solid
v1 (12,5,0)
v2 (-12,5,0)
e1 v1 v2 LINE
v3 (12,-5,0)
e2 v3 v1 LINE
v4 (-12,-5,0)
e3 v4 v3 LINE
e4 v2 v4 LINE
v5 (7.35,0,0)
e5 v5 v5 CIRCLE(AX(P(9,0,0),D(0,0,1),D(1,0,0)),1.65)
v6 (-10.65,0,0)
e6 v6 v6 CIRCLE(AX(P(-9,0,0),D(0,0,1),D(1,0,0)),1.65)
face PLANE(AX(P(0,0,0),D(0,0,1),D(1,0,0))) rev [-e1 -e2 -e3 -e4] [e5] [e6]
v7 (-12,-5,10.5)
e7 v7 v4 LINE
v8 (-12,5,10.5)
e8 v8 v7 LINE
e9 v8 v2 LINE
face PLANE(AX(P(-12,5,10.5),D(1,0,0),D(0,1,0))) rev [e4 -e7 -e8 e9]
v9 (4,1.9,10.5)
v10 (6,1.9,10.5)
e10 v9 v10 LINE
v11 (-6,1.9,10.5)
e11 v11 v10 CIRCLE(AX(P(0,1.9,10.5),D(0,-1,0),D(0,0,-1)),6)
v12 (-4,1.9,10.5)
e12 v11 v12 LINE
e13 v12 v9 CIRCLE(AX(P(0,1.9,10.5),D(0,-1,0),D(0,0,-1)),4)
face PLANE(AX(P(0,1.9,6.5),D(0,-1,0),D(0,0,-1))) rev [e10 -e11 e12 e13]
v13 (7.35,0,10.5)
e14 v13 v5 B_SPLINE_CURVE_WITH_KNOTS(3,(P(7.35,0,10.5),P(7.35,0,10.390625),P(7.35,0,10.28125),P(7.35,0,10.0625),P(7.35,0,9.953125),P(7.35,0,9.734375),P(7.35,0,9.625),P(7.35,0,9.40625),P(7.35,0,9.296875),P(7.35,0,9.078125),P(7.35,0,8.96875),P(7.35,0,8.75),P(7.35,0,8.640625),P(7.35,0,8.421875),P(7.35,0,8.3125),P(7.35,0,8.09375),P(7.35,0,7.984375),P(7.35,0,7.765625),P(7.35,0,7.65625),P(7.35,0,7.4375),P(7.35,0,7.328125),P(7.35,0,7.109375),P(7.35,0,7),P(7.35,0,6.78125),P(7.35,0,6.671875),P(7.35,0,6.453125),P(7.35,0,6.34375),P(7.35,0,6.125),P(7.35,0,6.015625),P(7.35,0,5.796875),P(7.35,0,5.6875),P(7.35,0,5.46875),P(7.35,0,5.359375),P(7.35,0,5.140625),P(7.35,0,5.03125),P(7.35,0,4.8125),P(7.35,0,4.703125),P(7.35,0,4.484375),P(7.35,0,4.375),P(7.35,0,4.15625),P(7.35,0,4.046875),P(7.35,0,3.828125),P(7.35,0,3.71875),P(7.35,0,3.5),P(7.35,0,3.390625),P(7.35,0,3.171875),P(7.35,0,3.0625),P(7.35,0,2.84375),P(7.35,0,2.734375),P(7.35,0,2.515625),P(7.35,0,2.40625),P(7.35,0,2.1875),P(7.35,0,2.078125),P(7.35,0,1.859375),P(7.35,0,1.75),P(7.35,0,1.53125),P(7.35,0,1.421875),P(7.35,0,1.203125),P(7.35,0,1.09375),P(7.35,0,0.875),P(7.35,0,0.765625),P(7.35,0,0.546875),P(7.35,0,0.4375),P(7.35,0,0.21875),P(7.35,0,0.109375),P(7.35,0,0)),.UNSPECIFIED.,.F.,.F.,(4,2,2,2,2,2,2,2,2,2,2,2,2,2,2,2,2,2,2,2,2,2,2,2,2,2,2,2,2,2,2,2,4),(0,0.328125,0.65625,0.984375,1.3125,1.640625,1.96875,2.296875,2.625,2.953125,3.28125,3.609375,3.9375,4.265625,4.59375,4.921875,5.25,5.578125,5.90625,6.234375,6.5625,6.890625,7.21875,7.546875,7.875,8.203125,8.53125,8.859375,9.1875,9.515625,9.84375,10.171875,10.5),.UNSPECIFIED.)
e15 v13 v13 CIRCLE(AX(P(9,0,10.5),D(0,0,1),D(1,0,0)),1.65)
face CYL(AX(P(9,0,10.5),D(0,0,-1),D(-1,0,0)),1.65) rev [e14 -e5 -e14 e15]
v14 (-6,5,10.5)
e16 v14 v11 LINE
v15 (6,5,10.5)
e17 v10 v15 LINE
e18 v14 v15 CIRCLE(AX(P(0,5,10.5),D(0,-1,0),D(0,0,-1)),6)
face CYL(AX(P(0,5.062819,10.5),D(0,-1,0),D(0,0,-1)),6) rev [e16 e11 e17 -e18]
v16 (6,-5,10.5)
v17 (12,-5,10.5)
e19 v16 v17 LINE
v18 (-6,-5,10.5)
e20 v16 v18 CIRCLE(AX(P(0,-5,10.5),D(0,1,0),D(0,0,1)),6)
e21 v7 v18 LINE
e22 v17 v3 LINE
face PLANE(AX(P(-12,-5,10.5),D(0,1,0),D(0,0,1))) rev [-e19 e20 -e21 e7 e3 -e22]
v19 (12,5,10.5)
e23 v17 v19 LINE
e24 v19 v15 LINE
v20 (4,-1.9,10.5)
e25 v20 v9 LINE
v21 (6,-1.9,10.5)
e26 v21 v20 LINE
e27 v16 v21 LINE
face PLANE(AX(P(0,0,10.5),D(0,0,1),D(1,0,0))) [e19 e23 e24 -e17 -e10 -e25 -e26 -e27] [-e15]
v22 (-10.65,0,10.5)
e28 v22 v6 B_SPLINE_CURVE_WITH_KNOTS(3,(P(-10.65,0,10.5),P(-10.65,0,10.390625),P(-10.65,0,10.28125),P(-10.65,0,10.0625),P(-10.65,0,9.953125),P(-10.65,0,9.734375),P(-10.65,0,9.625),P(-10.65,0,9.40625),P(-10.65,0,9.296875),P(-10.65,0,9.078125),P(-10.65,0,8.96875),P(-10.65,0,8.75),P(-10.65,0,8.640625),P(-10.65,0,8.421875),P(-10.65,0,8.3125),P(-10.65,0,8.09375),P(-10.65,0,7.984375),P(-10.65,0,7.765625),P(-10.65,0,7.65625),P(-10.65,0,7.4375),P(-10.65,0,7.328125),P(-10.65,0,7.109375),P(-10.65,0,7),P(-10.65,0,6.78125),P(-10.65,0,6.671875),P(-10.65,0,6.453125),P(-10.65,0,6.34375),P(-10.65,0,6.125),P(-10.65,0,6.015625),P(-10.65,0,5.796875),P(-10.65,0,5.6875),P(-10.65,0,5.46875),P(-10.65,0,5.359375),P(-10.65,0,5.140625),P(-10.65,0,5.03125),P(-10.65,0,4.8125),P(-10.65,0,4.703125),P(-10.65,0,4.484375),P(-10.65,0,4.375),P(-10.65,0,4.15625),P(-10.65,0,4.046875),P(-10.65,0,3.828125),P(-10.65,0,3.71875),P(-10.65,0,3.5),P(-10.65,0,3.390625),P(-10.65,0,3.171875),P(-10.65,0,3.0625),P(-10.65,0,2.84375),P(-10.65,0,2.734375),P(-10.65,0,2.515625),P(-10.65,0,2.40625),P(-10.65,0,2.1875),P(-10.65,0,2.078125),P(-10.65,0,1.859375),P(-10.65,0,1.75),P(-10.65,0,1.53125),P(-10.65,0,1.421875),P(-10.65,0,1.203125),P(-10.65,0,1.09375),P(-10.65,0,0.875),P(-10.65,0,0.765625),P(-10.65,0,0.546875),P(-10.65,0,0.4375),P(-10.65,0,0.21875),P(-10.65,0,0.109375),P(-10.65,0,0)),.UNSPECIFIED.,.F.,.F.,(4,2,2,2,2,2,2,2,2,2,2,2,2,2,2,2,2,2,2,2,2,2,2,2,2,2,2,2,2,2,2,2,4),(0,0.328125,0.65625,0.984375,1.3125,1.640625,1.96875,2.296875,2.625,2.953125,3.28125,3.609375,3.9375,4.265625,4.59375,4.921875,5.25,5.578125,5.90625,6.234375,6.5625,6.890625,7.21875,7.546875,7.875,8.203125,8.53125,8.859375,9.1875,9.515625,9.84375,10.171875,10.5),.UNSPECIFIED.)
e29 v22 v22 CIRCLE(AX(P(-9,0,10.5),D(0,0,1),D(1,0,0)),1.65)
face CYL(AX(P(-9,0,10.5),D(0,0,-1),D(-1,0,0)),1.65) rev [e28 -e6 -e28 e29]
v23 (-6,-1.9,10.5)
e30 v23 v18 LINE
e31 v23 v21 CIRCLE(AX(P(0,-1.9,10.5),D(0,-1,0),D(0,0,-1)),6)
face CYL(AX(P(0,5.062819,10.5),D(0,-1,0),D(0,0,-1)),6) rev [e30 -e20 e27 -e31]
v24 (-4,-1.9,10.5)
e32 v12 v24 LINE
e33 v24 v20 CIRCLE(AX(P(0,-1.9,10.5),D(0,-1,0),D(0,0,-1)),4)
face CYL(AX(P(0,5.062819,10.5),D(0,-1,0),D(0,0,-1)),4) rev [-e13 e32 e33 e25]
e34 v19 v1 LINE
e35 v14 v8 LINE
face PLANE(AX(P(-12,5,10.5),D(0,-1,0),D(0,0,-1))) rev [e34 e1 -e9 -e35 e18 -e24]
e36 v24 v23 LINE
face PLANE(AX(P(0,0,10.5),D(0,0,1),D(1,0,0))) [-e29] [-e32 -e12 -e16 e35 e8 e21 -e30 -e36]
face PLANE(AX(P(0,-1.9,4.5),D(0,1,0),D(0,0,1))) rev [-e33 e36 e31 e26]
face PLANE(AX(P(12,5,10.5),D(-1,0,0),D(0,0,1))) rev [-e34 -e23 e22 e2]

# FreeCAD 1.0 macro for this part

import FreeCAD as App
import Part
import Sketcher
from FreeCAD import Vector
Q = App.Units.Quantity


def add_polygon(sketch, points):
    """Adds a closed chain of lines whose ends are joined by coincident constraints."""
    first, n = sketch.GeometryCount, len(points)
    for a, b in zip(points, points[1:] + points[:1]):
        sketch.addGeometry(Part.LineSegment(App.Vector(*a, 0), App.Vector(*b, 0)), False)
    for i in range(n):
        sketch.addConstraint(Sketcher.Constraint("Coincident", first + i, 2, first + (i + 1) % n, 1))

doc = App.newDocument("Part")
params = doc.addObject("Spreadsheet::Sheet", "Params")
for row, (alias, value) in enumerate([
    ("sketch1_diameter", "3.3 mm"),
    ("sketch1_width", "24 mm"),
    ("sketch1_height", "10 mm"),
    ("pad1_length", "10.5 mm"),
    ("sketch2_width", "10 mm"),
    ("sketch2_height", "2 mm"),
    ("sketch2_height2", "6 mm"),
    ("sketch2_width2", "3.8 mm"),
    ("groove_angle", "360 deg"),
], start=1):
    params.set(f"A{row}", alias)
    params.set(f"B{row}", "=" + value)
    params.setAlias(f"B{row}", alias)

body = doc.addObject("PartDesign::Body", "Body")

# Sketch on XY plane
sketch1 = body.newObject("Sketcher::SketchObject", "Sketch")
sketch1.AttachmentSupport = (doc.getObject("XY_Plane"), [""])
sketch1.MapMode = "FlatFace"
add_polygon(sketch1, [(-12, 5), (-12, -5), (12, -5), (12, 5)])  # lines 0-3
sketch1.addGeometry(Part.Circle(Vector(-9, 0, 0), Vector(0, 0, 1), 1.6), False)  # 4
sketch1.addGeometry(Part.Circle(Vector(9, 0, 0), Vector(0, 0, 1), 1.6), False)  # 5
sketch1.addConstraint(Sketcher.Constraint("Vertical", 0))
sketch1.addConstraint(Sketcher.Constraint("Horizontal", 1))
sketch1.addConstraint(Sketcher.Constraint("Vertical", 2))
sketch1.addConstraint(Sketcher.Constraint("Horizontal", 3))
sketch1.addConstraint(Sketcher.Constraint("Equal", 4, 5))
sketch1.addConstraint(Sketcher.Constraint("Symmetric", 4, 3, 5, 3, -1, 1))
sketch1.addConstraint(Sketcher.Constraint("Symmetric", 0, 2, 2, 2, -1, 1))
sketch1.addConstraint(Sketcher.Constraint("PointOnObject", 4, 3, -1))
sketch1.addConstraint(Sketcher.Constraint("Diameter", 4, Q("3.3 mm")))
sketch1.addConstraint(Sketcher.Constraint("DistanceX", 1, 1, 1, 2, Q("24 mm")))
sketch1.addConstraint(Sketcher.Constraint("DistanceY", 0, 2, 0, 1, Q("10 mm")))
sketch1.addConstraint(Sketcher.Constraint("DistanceX", 4, 3, -1, 1, Q("9 mm")))
sketch1.setExpression("Constraints[12]", "Params.sketch1_diameter")
sketch1.setExpression("Constraints[13]", "Params.sketch1_width")
sketch1.setExpression("Constraints[14]", "Params.sketch1_height")
pad1 = body.newObject("PartDesign::Pad", "Pad")
pad1.Profile = sketch1
pad1.setExpression("Length", "Params.pad1_length")

# Sketch on YZ plane
sketch2 = body.newObject("Sketcher::SketchObject", "Sketch001")
sketch2.AttachmentSupport = (doc.getObject("YZ_Plane"), [""])
sketch2.MapMode = "FlatFace"
add_polygon(sketch2, [(-1.9, 6.5), (1.9, 6.5), (1.9, 4.5), (5, 4.5), (5, 10.5), (-5, 10.5), (-5, 4.5), (-1.9, 4.5)])  # lines 0-7
sketch2.addGeometry(Part.LineSegment(Vector(-5, 10.5, 0), Vector(5, 10.5, 0)), True)  # axis
sketch2.addConstraint(Sketcher.Constraint("Horizontal", 0))
sketch2.addConstraint(Sketcher.Constraint("Vertical", 1))
sketch2.addConstraint(Sketcher.Constraint("Horizontal", 2))
sketch2.addConstraint(Sketcher.Constraint("Vertical", 3))
sketch2.addConstraint(Sketcher.Constraint("Horizontal", 4))
sketch2.addConstraint(Sketcher.Constraint("Vertical", 5))
sketch2.addConstraint(Sketcher.Constraint("Horizontal", 6))
sketch2.addConstraint(Sketcher.Constraint("Vertical", 7))
sketch2.addConstraint(Sketcher.Constraint("Horizontal", 8))
sketch2.addConstraint(Sketcher.Constraint("Coincident", 8, 1, 4, 2))
sketch2.addConstraint(Sketcher.Constraint("Symmetric", 2, 2, 5, 2, -2))
sketch2.addConstraint(Sketcher.Constraint("Vertical", 2, 2, 8, 2))
sketch2.addConstraint(Sketcher.Constraint("Equal", 2, 6))
sketch2.addConstraint(Sketcher.Constraint("DistanceX", 4, 2, 4, 1, Q("10 mm")))
sketch2.addConstraint(Sketcher.Constraint("DistanceY", 1, 2, 1, 1, Q("2 mm")))
sketch2.addConstraint(Sketcher.Constraint("DistanceY", 3, 1, 3, 2, Q("6 mm")))
sketch2.addConstraint(Sketcher.Constraint("DistanceX", 0, 1, 0, 2, Q("3.8 mm")))
sketch2.addConstraint(Sketcher.Constraint("DistanceY", -1, 1, 0, 2, Q("6.5 mm")))
sketch2.setExpression("Constraints[21]", "Params.sketch2_width")
sketch2.setExpression("Constraints[22]", "Params.sketch2_height")
sketch2.setExpression("Constraints[23]", "Params.sketch2_height2")
sketch2.setExpression("Constraints[24]", "Params.sketch2_width2")
groove = body.newObject("PartDesign::Groove", "Groove")
groove.Profile = sketch2
groove.ReferenceAxis = (sketch2, ["Axis0"])
groove.setExpression("Angle", "Params.groove_angle")

doc.recompute()
